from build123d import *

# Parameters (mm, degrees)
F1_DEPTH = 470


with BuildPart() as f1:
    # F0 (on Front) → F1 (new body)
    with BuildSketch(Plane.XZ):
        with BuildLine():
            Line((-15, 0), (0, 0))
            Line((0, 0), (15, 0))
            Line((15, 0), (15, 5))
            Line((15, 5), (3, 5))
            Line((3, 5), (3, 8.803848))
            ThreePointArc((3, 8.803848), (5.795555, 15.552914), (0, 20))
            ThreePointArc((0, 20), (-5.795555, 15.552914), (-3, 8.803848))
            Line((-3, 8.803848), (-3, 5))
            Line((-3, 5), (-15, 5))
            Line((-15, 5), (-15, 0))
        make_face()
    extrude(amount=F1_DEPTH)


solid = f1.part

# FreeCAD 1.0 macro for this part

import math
import FreeCAD as App
import Part
import Sketcher

doc = App.newDocument("Part")
body = doc.addObject("PartDesign::Body", "Body")

# Sketch on XZ plane
sketch1 = body.newObject("Sketcher::SketchObject", "Sketch")
sketch1.AttachmentSupport = (doc.getObject("XZ_Plane"), [""])
sketch1.MapMode = "FlatFace"
sketch1.addGeometry(Part.LineSegment(App.Vector(-15, 0, 0), App.Vector(15, 0, 0)), False)
sketch1.addGeometry(Part.LineSegment(App.Vector(15, 0, 0), App.Vector(15, 5, 0)), False)
sketch1.addGeometry(Part.LineSegment(App.Vector(15, 5, 0), App.Vector(3, 5, 0)), False)
sketch1.addGeometry(Part.LineSegment(App.Vector(3, 5, 0), App.Vector(3, 8.803848, 0)), False)
sketch1.addGeometry(Part.ArcOfCircle(Part.Circle(App.Vector(0, 14, 0), App.Vector(0, 0, 1), 6), math.radians(-60), math.radians(90.000001)), False)
sketch1.addGeometry(Part.ArcOfCircle(Part.Circle(App.Vector(0, 14, 0), App.Vector(0, 0, 1), 6), math.radians(89.999999), math.radians(240)), False)
sketch1.addGeometry(Part.LineSegment(App.Vector(-3, 8.803848, 0), App.Vector(-3, 5, 0)), False)
sketch1.addGeometry(Part.LineSegment(App.Vector(-3, 5, 0), App.Vector(-15, 5, 0)), False)
sketch1.addGeometry(Part.LineSegment(App.Vector(-15, 5, 0), App.Vector(-15, 0, 0)), False)
sketch1.addConstraint(Sketcher.Constraint("Coincident", 0, 2, 1, 1))
sketch1.addConstraint(Sketcher.Constraint("Coincident", 1, 2, 2, 1))
sketch1.addConstraint(Sketcher.Constraint("Coincident", 2, 2, 3, 1))
sketch1.addConstraint(Sketcher.Constraint("Coincident", 3, 2, 4, 1))
sketch1.addConstraint(Sketcher.Constraint("Tangent", 4, 2, 5, 1))
sketch1.addConstraint(Sketcher.Constraint("Coincident", 5, 2, 6, 1))
sketch1.addConstraint(Sketcher.Constraint("Coincident", 6, 2, 7, 1))
sketch1.addConstraint(Sketcher.Constraint("Coincident", 7, 2, 8, 1))
sketch1.addConstraint(Sketcher.Constraint("Coincident", 8, 2, 0, 1))
sketch1.addConstraint(Sketcher.Constraint("Horizontal", 0))
sketch1.addConstraint(Sketcher.Constraint("Vertical", 1))
sketch1.addConstraint(Sketcher.Constraint("Horizontal", 2))
sketch1.addConstraint(Sketcher.Constraint("Vertical", 3))
sketch1.addConstraint(Sketcher.Constraint("Vertical", 6))
sketch1.addConstraint(Sketcher.Constraint("Horizontal", 7))
sketch1.addConstraint(Sketcher.Constraint("Vertical", 8))
sketch1.addConstraint(Sketcher.Constraint("Equal", 4, 5))
sketch1.addConstraint(Sketcher.Constraint("Symmetric", 0, 2, 8, 2, -1, 1))
sketch1.addConstraint(Sketcher.Constraint("Symmetric", 3, 2, 5, 2, -2))
sketch1.addConstraint(Sketcher.Constraint("PointOnObject", 4, 2, -2))
sketch1.addConstraint(Sketcher.Constraint("Horizontal", 2, 2, 6, 2))
sketch1.addConstraint(Sketcher.Constraint("Radius", 4, 6.0))
sketch1.addConstraint(Sketcher.Constraint("DistanceX", 0, 1, 0, 2, 30.0))
sketch1.addConstraint(Sketcher.Constraint("DistanceX", 2, 2, 2, 1, 12.0))
sketch1.addConstraint(Sketcher.Constraint("DistanceY", 1, 1, 1, 2, 5.0))
sketch1.addConstraint(Sketcher.Constraint("DistanceY", -1, 1, 4, 3, 14.0))
pad1 = body.newObject("PartDesign::Pad", "Pad")
pad1.Profile = sketch1
pad1.Length = 470

doc.recompute()
